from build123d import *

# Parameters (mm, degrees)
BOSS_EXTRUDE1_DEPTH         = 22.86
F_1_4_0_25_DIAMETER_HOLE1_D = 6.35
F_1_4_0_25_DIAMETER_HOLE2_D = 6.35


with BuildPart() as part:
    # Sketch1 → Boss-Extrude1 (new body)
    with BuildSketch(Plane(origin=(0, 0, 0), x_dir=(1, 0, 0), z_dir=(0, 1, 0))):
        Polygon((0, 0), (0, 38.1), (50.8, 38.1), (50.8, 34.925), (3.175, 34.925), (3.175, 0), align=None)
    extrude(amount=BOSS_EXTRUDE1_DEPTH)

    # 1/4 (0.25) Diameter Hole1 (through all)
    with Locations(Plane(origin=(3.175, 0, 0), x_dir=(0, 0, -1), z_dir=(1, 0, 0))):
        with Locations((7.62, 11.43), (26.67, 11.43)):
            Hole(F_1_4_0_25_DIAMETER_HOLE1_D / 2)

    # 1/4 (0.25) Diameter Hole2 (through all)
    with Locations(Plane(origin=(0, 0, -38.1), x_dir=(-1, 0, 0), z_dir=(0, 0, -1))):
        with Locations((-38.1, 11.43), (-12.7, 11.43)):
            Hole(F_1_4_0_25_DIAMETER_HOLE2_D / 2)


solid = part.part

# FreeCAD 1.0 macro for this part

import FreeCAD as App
import Part
import Sketcher
Q = App.Units.Quantity

doc = App.newDocument("Part")
params = doc.addObject("Spreadsheet::Sheet", "Params")
for row, (alias, value) in enumerate([
    ("sketch1_width", "2 in"),
    ("sketch1_height", "1.5 in"),
    ("sketch1_width2", "0.125 in"),
    ("pad1_length", "0.9 in"),
    ("sketch2_diameter", "0.25 in"),
    ("hole_diameter", "0.25 in"),
    ("sketch3_diameter", "0.25 in"),
    ("hole2_diameter", "0.25 in"),
], start=1):
    params.set(f"A{row}", alias)
    params.set(f"B{row}", "=" + value)
    params.setAlias(f"B{row}", alias)

body = doc.addObject("PartDesign::Body", "Body")

# Sketch on XZ plane
sketch1 = body.newObject("Sketcher::SketchObject", "Sketch")
sketch1.AttachmentSupport = (doc.getObject("XZ_Plane"), [""])
sketch1.MapMode = "FlatFace"
sketch1.addGeometry([
    Part.LineSegment(App.Vector(0, -38.1, 0), App.Vector(0, 0, 0)),  # 0
    Part.LineSegment(App.Vector(0, 0, 0), App.Vector(3.2, 0, 0)),  # 1
    Part.LineSegment(App.Vector(3.2, 0, 0), App.Vector(3.2, -34.9, 0)),  # 2
    Part.LineSegment(App.Vector(3.2, -34.9, 0), App.Vector(50.8, -34.9, 0)),  # 3
    Part.LineSegment(App.Vector(50.8, -34.9, 0), App.Vector(50.8, -38.1, 0)),  # 4
    Part.LineSegment(App.Vector(50.8, -38.1, 0), App.Vector(0, -38.1, 0)),  # 5
], False)
sketch1.addConstraint([
    Sketcher.Constraint("Coincident", 0, 2, 1, 1),
    Sketcher.Constraint("Coincident", 1, 2, 2, 1),
    Sketcher.Constraint("Coincident", 2, 2, 3, 1),
    Sketcher.Constraint("Coincident", 3, 2, 4, 1),
    Sketcher.Constraint("Coincident", 4, 2, 5, 1),
    Sketcher.Constraint("Coincident", 5, 2, 0, 1),
    Sketcher.Constraint("Vertical", 0),
    Sketcher.Constraint("Horizontal", 1),
    Sketcher.Constraint("Vertical", 2),
    Sketcher.Constraint("Horizontal", 3),
    Sketcher.Constraint("Vertical", 4),
    Sketcher.Constraint("Horizontal", 5),
    Sketcher.Constraint("Coincident", 0, 2, -1, 1),
    Sketcher.Constraint("Equal", 1, 4),
    Sketcher.Constraint("DistanceX", 5, 2, 5, 1, Q("2 in")),
    Sketcher.Constraint("DistanceY", 0, 1, 0, 2, Q("1.5 in")),
    Sketcher.Constraint("DistanceX", 1, 1, 1, 2, Q("0.125 in")),
])
sketch1.setExpression("Constraints[14]", "Params.sketch1_width")
sketch1.setExpression("Constraints[15]", "Params.sketch1_height")
sketch1.setExpression("Constraints[16]", "Params.sketch1_width2")
pad1 = body.newObject("PartDesign::Pad", "Pad")
pad1.Profile = sketch1
pad1.setExpression("Length", "Params.pad1_length")
pad1.Reversed = True

# Sketch on YZ plane
sketch2 = body.newObject("Sketcher::SketchObject", "Sketch001")
sketch2.AttachmentSupport = (doc.getObject("YZ_Plane"), [""])
sketch2.MapMode = "FlatFace"
sketch2.AttachmentOffset = App.Placement(App.Vector(0, 0, 0.125 * 25.4), App.Rotation())
sketch2.addGeometry([
    Part.Circle(App.Vector(11.4, -7.6, 0), App.Vector(0, 0, 1), 3.2),
    Part.Circle(App.Vector(11.4, -26.7, 0), App.Vector(0, 0, 1), 3.2),
], False)
sketch2.addConstraint([
    Sketcher.Constraint("Equal", 0, 1),
    Sketcher.Constraint("Vertical", 0, 3, 1, 3),
    Sketcher.Constraint("Diameter", 0, Q("0.25 in")),
    Sketcher.Constraint("DistanceY", 0, 3, -1, 1, Q("0.3 in")),
    Sketcher.Constraint("DistanceX", -1, 1, 0, 3, Q("0.45 in")),
    Sketcher.Constraint("DistanceY", 1, 3, -1, 1, Q("1.05 in")),
])
sketch2.setExpression("Constraints[2]", "Params.sketch2_diameter")
doc.recompute()
hole = body.newObject("PartDesign::Hole", "Hole")
hole.Profile = sketch2
hole.ThreadType = "None"
hole.setExpression("Diameter", "Params.hole_diameter")
hole.DepthType = "ThroughAll"

# Sketch on XY plane
sketch3 = body.newObject("Sketcher::SketchObject", "Sketch002")
sketch3.AttachmentSupport = (doc.getObject("XY_Plane"), [""])
sketch3.MapMode = "FlatFace"
sketch3.AttachmentOffset = App.Placement(App.Vector(0, 0, -1.5 * 25.4), App.Rotation())
sketch3.addGeometry([
    Part.Circle(App.Vector(38.1, 11.4, 0), App.Vector(0, 0, 1), 3.2),
    Part.Circle(App.Vector(12.7, 11.4, 0), App.Vector(0, 0, 1), 3.2),
], False)
sketch3.addConstraint([
    Sketcher.Constraint("Equal", 0, 1),
    Sketcher.Constraint("Horizontal", 0, 3, 1, 3),
    Sketcher.Constraint("Diameter", 0, Q("0.25 in")),
    Sketcher.Constraint("DistanceX", 1, 3, 0, 3, Q("1 in")),
    Sketcher.Constraint("DistanceX", -1, 1, 0, 3, Q("1.5 in")),
    Sketcher.Constraint("DistanceY", -1, 1, 0, 3, Q("0.45 in")),
])
sketch3.setExpression("Constraints[2]", "Params.sketch3_diameter")
doc.recompute()
hole2 = body.newObject("PartDesign::Hole", "Hole001")
hole2.Profile = sketch3
hole2.ThreadType = "None"
hole2.setExpression("Diameter", "Params.hole2_diameter")
hole2.DepthType = "ThroughAll"
hole2.Reversed = True

doc.recompute()
